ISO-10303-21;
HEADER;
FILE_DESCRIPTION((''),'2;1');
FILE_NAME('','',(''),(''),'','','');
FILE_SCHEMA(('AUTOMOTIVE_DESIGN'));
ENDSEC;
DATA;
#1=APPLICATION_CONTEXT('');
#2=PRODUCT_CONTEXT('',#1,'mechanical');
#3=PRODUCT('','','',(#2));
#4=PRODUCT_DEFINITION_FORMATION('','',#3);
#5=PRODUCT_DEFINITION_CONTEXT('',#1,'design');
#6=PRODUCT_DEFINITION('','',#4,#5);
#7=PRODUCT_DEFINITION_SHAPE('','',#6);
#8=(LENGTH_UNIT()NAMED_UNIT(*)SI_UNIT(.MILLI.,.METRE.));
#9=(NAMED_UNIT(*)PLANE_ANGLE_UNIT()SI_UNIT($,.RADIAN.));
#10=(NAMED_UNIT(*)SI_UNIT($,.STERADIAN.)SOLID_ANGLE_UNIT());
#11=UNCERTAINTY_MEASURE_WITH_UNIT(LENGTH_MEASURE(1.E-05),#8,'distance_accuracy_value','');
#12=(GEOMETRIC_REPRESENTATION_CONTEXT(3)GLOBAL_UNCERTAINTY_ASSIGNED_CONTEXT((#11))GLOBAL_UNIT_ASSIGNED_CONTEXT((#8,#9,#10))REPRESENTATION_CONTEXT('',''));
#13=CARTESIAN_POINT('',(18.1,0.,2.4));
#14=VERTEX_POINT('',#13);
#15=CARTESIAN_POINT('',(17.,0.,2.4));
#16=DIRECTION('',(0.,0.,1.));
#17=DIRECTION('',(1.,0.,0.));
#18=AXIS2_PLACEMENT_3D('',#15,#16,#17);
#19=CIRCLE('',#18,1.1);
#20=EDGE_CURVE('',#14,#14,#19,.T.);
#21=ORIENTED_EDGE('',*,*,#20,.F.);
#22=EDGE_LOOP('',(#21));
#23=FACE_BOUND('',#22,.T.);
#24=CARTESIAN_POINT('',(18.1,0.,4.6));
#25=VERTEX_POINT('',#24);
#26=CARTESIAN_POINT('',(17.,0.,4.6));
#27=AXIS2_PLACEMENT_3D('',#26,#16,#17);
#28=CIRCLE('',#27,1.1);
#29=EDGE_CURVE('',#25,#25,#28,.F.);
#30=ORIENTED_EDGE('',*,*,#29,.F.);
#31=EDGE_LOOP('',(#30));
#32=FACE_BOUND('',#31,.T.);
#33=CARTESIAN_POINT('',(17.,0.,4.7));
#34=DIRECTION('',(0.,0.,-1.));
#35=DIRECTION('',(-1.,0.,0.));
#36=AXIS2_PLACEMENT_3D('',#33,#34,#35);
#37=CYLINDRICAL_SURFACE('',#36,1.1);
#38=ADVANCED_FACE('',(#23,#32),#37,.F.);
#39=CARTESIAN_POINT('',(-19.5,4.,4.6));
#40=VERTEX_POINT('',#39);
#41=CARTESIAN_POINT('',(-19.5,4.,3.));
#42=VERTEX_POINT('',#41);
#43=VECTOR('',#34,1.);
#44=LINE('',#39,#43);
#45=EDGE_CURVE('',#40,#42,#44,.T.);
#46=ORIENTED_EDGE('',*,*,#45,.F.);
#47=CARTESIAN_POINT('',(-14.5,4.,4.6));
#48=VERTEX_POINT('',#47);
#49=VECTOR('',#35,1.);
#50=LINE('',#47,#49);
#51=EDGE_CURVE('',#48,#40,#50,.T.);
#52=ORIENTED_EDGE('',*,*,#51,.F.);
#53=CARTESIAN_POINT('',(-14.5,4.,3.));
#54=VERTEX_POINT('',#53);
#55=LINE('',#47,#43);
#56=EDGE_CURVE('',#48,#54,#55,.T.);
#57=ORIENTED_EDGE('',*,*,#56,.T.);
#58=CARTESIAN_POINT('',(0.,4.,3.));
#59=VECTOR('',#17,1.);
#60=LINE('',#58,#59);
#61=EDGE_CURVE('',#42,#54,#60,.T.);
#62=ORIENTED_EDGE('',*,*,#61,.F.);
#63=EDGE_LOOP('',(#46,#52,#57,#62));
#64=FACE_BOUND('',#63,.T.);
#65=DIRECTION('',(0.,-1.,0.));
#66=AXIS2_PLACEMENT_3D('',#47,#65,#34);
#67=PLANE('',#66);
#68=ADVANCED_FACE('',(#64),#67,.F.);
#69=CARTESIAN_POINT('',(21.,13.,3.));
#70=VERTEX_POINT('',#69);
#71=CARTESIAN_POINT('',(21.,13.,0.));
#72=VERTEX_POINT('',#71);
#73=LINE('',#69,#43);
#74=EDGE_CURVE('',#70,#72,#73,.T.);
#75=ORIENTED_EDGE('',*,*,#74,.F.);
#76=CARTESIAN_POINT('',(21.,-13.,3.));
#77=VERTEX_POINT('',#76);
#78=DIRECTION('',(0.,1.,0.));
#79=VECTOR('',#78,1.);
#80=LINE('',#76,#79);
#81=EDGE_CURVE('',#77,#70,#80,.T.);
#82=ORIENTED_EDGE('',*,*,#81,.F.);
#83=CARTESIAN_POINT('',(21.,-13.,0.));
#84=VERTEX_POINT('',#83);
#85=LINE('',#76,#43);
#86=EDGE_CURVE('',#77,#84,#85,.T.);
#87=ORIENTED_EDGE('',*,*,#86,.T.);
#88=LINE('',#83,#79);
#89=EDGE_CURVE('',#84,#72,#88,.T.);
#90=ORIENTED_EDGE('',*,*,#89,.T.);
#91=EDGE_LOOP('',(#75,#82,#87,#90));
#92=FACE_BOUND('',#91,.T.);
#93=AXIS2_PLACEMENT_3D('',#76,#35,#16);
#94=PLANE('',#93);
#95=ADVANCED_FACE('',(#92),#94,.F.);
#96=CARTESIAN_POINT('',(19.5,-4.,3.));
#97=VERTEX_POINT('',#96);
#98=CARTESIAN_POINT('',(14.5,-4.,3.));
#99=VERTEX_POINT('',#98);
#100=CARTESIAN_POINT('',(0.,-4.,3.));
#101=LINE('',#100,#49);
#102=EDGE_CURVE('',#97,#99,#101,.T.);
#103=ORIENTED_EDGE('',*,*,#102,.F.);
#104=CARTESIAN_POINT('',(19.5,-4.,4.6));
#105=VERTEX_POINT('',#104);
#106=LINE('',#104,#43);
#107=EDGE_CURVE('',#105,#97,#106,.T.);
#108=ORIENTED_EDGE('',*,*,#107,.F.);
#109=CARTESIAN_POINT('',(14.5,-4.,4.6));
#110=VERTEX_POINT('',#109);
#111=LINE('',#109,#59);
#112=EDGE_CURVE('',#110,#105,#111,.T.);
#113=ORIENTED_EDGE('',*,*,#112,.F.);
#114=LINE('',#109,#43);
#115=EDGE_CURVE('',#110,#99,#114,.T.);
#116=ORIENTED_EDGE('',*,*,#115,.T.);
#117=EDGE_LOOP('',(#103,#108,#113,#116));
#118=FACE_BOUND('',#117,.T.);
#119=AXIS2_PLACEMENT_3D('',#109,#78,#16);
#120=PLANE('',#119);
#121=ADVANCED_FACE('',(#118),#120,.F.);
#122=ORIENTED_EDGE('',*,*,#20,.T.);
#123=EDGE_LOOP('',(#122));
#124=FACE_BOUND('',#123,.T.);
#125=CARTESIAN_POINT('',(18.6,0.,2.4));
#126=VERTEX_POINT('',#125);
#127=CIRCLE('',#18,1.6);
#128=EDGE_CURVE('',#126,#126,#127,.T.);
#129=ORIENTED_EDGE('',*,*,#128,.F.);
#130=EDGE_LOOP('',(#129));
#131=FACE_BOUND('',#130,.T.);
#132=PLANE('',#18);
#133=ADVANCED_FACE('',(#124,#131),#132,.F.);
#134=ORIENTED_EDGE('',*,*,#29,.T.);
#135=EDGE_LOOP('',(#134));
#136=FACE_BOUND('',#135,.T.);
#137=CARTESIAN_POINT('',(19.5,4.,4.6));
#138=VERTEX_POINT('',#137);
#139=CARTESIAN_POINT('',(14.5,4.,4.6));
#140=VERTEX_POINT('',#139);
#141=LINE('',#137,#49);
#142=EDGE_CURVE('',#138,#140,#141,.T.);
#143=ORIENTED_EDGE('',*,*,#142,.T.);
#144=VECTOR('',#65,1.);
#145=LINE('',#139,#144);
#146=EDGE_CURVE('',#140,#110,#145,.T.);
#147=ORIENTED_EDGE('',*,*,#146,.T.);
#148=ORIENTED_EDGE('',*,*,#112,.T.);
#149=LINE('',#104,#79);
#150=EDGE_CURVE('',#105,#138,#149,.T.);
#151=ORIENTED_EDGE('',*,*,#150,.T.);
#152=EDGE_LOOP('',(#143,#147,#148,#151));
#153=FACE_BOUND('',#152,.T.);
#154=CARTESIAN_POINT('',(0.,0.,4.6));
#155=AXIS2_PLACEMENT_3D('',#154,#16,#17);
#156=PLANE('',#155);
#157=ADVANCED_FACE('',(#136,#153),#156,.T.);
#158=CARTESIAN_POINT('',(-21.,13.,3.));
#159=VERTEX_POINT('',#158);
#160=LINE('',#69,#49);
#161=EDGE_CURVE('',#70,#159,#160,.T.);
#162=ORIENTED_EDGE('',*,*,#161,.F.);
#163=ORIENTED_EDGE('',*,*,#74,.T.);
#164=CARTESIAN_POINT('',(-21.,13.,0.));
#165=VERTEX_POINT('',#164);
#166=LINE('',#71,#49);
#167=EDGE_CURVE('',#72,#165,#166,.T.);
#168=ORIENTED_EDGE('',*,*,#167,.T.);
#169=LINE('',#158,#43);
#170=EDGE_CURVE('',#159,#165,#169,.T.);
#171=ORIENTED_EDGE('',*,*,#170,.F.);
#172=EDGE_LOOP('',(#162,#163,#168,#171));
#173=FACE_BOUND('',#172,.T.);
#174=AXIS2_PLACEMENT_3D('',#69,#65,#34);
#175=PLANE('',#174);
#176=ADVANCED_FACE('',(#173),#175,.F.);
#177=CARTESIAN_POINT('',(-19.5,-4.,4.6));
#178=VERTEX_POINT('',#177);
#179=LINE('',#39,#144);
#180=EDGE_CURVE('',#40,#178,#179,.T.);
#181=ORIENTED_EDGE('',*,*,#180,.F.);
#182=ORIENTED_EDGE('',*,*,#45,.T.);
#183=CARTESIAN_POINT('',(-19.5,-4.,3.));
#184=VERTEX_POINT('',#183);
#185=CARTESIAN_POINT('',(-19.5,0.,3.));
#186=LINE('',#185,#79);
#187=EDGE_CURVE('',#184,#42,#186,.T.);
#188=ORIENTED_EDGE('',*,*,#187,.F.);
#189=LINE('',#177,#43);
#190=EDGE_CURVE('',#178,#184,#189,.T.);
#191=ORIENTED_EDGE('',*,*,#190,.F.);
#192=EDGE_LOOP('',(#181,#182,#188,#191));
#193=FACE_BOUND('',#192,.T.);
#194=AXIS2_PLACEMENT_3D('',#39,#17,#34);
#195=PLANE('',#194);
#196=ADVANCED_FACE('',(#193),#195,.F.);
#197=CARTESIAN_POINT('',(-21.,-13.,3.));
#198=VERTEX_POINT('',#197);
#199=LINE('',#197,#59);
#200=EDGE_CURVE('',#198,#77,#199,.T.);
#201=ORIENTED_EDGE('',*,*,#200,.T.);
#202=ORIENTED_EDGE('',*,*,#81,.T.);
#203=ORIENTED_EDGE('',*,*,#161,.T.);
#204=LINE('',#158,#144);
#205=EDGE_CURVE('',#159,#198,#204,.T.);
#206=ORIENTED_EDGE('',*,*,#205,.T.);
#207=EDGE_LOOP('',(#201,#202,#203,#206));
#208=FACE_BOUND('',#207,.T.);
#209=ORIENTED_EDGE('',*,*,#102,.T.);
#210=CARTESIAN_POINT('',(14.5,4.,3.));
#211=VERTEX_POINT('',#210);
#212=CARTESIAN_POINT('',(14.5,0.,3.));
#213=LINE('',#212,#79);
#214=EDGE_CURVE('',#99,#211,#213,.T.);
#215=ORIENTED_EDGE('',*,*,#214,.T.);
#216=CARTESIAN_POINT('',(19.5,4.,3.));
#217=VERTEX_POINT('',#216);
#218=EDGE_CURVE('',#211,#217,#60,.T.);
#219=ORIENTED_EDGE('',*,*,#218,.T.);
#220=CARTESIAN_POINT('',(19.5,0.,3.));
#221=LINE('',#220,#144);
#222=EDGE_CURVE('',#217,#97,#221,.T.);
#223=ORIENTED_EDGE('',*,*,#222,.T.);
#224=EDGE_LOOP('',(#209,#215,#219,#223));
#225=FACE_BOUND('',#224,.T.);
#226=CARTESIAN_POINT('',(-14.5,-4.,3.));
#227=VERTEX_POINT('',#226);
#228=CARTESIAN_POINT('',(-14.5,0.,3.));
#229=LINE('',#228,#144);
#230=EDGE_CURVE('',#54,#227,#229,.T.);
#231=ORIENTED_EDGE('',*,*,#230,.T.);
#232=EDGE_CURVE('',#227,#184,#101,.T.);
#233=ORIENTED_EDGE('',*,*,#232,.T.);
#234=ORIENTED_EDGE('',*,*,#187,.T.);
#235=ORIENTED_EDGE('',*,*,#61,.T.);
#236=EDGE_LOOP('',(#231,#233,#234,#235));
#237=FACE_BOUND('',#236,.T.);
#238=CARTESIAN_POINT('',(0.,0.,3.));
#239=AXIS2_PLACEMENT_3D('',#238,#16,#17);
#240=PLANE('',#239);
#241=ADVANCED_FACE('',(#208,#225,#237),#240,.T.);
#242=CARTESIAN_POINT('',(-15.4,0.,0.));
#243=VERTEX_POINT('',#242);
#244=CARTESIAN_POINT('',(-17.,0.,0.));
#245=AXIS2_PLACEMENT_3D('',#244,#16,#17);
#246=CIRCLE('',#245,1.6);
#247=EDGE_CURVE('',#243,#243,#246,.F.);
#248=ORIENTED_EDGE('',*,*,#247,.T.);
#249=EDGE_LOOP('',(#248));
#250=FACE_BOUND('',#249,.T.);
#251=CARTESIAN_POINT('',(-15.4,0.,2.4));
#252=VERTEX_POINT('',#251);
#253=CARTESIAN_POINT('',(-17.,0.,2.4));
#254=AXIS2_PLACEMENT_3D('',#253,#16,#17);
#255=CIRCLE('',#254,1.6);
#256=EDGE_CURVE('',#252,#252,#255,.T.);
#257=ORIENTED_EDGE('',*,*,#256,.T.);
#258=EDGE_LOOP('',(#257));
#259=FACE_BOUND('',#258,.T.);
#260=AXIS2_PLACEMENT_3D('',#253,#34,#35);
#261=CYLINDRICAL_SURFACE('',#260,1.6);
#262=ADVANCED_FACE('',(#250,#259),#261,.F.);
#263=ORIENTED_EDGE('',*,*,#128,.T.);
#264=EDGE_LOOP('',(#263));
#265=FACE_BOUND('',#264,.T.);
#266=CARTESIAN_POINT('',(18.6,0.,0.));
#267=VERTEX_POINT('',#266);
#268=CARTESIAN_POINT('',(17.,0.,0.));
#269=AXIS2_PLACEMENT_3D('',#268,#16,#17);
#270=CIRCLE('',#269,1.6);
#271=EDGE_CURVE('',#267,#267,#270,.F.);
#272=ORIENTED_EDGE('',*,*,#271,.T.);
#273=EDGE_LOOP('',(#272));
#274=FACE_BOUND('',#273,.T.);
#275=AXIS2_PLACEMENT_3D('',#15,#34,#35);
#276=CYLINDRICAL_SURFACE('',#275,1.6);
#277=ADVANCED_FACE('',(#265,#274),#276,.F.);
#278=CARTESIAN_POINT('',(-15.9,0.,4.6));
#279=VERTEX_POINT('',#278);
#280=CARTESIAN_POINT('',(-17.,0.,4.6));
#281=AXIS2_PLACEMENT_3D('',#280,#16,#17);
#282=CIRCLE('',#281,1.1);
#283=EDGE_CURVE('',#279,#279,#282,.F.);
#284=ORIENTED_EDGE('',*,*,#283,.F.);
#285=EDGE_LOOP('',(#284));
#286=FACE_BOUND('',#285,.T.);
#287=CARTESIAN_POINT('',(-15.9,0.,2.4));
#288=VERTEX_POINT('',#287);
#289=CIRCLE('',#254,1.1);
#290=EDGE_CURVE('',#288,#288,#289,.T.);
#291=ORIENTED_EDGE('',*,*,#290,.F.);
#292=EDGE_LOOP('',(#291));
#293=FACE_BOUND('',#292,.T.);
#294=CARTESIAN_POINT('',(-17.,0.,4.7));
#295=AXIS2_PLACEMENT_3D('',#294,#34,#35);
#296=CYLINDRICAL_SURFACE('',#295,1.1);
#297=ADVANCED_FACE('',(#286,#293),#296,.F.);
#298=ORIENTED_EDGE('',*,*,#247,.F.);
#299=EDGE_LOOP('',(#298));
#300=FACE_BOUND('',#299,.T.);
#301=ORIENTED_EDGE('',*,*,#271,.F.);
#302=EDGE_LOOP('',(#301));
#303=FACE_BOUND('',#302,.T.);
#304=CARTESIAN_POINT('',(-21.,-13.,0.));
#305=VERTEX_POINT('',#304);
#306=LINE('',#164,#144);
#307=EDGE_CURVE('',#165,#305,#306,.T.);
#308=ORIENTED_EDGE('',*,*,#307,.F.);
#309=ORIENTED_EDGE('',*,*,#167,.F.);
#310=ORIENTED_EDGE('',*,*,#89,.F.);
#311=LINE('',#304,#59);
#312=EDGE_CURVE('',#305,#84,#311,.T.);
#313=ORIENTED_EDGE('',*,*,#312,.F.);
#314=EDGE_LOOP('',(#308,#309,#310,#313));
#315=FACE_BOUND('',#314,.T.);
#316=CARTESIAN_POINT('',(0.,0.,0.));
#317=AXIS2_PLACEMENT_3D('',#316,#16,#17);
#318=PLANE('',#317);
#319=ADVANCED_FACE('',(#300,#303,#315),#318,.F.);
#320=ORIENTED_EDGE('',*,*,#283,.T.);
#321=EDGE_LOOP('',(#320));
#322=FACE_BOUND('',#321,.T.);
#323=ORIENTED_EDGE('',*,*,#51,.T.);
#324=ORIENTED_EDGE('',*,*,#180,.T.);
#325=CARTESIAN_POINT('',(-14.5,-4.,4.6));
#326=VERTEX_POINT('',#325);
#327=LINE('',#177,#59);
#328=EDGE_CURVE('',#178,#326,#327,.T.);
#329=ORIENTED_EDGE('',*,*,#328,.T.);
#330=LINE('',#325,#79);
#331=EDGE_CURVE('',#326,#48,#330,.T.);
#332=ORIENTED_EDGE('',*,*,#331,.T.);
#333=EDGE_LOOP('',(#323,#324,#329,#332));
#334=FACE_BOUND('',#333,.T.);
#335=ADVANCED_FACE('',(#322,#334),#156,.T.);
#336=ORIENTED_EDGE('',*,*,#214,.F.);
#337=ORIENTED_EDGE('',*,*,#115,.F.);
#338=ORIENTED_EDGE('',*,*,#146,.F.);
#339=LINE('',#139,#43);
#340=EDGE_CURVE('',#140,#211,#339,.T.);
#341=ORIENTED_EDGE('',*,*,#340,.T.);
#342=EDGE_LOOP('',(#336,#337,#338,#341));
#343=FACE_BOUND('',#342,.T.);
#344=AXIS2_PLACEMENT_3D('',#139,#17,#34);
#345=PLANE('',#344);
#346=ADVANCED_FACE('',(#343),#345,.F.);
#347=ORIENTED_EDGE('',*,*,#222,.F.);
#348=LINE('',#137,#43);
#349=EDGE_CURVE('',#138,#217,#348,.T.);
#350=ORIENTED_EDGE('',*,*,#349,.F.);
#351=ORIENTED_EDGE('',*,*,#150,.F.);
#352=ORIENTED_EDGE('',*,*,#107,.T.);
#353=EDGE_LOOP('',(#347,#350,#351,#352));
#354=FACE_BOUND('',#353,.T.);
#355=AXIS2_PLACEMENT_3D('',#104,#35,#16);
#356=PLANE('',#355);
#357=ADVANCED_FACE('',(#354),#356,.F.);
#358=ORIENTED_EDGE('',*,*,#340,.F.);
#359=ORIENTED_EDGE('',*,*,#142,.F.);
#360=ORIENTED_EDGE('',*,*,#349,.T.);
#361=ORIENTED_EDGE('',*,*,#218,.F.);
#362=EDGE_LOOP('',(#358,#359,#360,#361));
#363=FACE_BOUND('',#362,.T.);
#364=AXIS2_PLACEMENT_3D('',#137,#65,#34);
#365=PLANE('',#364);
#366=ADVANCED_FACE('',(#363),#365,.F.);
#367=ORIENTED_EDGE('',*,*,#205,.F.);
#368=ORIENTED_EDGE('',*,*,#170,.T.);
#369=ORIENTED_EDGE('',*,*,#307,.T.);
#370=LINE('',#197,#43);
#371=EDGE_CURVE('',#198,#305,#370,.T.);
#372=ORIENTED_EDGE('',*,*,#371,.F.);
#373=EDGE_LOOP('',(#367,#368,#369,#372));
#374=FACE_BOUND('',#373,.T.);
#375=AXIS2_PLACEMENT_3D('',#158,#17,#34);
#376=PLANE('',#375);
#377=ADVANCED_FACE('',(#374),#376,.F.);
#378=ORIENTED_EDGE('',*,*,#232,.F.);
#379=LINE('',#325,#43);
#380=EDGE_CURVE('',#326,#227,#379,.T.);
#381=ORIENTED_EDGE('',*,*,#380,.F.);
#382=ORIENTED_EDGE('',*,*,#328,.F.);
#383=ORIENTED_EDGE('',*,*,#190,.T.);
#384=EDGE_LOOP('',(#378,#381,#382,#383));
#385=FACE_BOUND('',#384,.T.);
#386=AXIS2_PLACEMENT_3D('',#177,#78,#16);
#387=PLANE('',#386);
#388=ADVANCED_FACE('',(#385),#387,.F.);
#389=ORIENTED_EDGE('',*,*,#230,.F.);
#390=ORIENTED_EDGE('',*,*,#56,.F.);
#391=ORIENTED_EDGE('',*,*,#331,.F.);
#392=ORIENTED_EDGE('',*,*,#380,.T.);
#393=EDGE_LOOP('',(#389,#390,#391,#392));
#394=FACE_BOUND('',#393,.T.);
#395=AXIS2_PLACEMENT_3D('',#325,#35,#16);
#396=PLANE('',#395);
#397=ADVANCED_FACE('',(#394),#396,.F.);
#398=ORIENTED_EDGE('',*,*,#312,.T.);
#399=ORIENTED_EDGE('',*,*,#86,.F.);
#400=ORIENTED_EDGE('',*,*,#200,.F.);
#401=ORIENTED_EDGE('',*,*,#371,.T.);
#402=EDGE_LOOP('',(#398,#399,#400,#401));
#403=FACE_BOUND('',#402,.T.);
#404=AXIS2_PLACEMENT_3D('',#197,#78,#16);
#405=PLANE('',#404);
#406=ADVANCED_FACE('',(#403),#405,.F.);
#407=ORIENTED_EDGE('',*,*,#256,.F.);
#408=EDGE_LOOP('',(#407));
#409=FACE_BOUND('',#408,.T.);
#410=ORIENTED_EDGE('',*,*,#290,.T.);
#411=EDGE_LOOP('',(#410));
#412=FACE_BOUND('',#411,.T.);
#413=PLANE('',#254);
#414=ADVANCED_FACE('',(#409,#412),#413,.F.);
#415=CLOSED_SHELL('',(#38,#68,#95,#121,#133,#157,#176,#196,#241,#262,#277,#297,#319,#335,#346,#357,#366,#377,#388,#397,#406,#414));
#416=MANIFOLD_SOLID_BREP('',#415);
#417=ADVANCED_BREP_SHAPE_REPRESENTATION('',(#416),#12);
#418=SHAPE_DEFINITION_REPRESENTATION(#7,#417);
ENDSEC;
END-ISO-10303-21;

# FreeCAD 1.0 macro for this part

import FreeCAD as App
import Part
import Sketcher

V = App.Vector
Q = App.Units.Quantity


def add_polygon(sketch, points):
    """Adds a closed chain of lines whose ends are joined by coincident constraints."""
    first, n = sketch.GeometryCount, len(points)
    for a, b in zip(points, points[1:] + points[:1]):
        sketch.addGeometry(Part.LineSegment(App.Vector(*a, 0), App.Vector(*b, 0)), False)
    for i in range(n):
        sketch.addConstraint(Sketcher.Constraint("Coincident", first + i, 2, first + (i + 1) % n, 1))

doc = App.newDocument("Part")
body = doc.addObject("PartDesign::Body", "Body")

# Sketch on XY plane
sketch1 = body.newObject("Sketcher::SketchObject", "Sketch")
sketch1.AttachmentSupport = (doc.getObject("XY_Plane"), [""])
sketch1.MapMode = "FlatFace"
add_polygon(sketch1, [(-21, 13), (-21, -13), (21, -13), (21, 13)])  # lines 0-3
sketch1.addConstraint([
    Sketcher.Constraint("Vertical", 0),
    Sketcher.Constraint("Horizontal", 1),
    Sketcher.Constraint("Vertical", 2),
    Sketcher.Constraint("Horizontal", 3),
    Sketcher.Constraint("Symmetric", 0, 2, 2, 2, -1, 1),
    Sketcher.Constraint("DistanceX", 1, 1, 1, 2, Q("42 mm")),
    Sketcher.Constraint("DistanceY", 0, 2, 0, 1, Q("26 mm")),
])
pad1 = body.newObject("PartDesign::Pad", "Pad")
pad1.Profile = sketch1
pad1.Length = 3

# Sketch on XY plane
sketch2 = body.newObject("Sketcher::SketchObject", "Sketch001")
sketch2.AttachmentSupport = (doc.getObject("XY_Plane"), [""])
sketch2.MapMode = "FlatFace"
sketch2.AttachmentOffset = App.Placement(V(0, 0, 2.9), App.Rotation())
add_polygon(sketch2, [(-20, 4), (-20, -4), (-14, -4), (-14, 4)])  # lines 0-3
sketch2.addConstraint([
    Sketcher.Constraint("Vertical", 0),
    Sketcher.Constraint("Horizontal", 1),
    Sketcher.Constraint("Vertical", 2),
    Sketcher.Constraint("Horizontal", 3),
    Sketcher.Constraint("DistanceX", 1, 1, 1, 2, Q("5 mm")),
    Sketcher.Constraint("DistanceY", 0, 2, 0, 1, Q("8 mm")),
    Sketcher.Constraint("DistanceY", 0, 2, -1, 1, Q("4 mm")),
    Sketcher.Constraint("DistanceX", 0, 2, -1, 1, Q("19.5 mm")),
])
pad2 = body.newObject("PartDesign::Pad", "Pad001")
pad2.Profile = sketch2
pad2.Length = 1.7

# Sketch on XY plane
sketch3 = body.newObject("Sketcher::SketchObject", "Sketch002")
sketch3.AttachmentSupport = (doc.getObject("XY_Plane"), [""])
sketch3.MapMode = "FlatFace"
sketch3.AttachmentOffset = App.Placement(V(0, 0, -0.1), App.Rotation())
sketch3.addGeometry(Part.Circle(V(-17, 0, 0), V(0, 0, 1), 1.1), False)
sketch3.addConstraint([
    Sketcher.Constraint("PointOnObject", 0, 3, -1),
    Sketcher.Constraint("Diameter", 0, Q("2.2 mm")),
    Sketcher.Constraint("DistanceX", 0, 3, -1, 1, Q("17 mm")),
])
pocket1 = body.newObject("PartDesign::Pocket", "Pocket")
pocket1.Profile = sketch3
pocket1.Length = 4.8
pocket1.Reversed = True

# Sketch on XY plane
sketch4 = body.newObject("Sketcher::SketchObject", "Sketch003")
sketch4.AttachmentSupport = (doc.getObject("XY_Plane"), [""])
sketch4.MapMode = "FlatFace"
sketch4.AttachmentOffset = App.Placement(V(0, 0, -0.1), App.Rotation())
sketch4.addGeometry(Part.Circle(V(-17, 0, 0), V(0, 0, 1), 1.6), False)
sketch4.addConstraint([
    Sketcher.Constraint("PointOnObject", 0, 3, -1),
    Sketcher.Constraint("Diameter", 0, Q("3.2 mm")),
    Sketcher.Constraint("DistanceX", 0, 3, -1, 1, Q("17 mm")),
])
pocket2 = body.newObject("PartDesign::Pocket", "Pocket001")
pocket2.Profile = sketch4
pocket2.Length = 2.5
pocket2.Reversed = True

# Sketch on XY plane
sketch5 = body.newObject("Sketcher::SketchObject", "Sketch004")
sketch5.AttachmentSupport = (doc.getObject("XY_Plane"), [""])
sketch5.MapMode = "FlatFace"
sketch5.AttachmentOffset = App.Placement(V(0, 0, 2.9), App.Rotation())
add_polygon(sketch5, [(14, 4), (14, -4), (20, -4), (20, 4)])  # lines 0-3
sketch5.addConstraint([
    Sketcher.Constraint("Vertical", 0),
    Sketcher.Constraint("Horizontal", 1),
    Sketcher.Constraint("Vertical", 2),
    Sketcher.Constraint("Horizontal", 3),
    Sketcher.Constraint("DistanceX", 1, 1, 1, 2, Q("5 mm")),
    Sketcher.Constraint("DistanceY", 0, 2, 0, 1, Q("8 mm")),
    Sketcher.Constraint("DistanceY", 0, 2, -1, 1, Q("4 mm")),
    Sketcher.Constraint("DistanceX", -1, 1, 0, 2, Q("14.5 mm")),
])
pad3 = body.newObject("PartDesign::Pad", "Pad002")
pad3.Profile = sketch5
pad3.Length = 1.7

# Sketch on XY plane
sketch6 = body.newObject("Sketcher::SketchObject", "Sketch005")
sketch6.AttachmentSupport = (doc.getObject("XY_Plane"), [""])
sketch6.MapMode = "FlatFace"
sketch6.AttachmentOffset = App.Placement(V(0, 0, -0.1), App.Rotation())
sketch6.addGeometry(Part.Circle(V(17, 0, 0), V(0, 0, 1), 1.1), False)
sketch6.addConstraint([
    Sketcher.Constraint("PointOnObject", 0, 3, -1),
    Sketcher.Constraint("Diameter", 0, Q("2.2 mm")),
    Sketcher.Constraint("DistanceX", -1, 1, 0, 3, Q("17 mm")),
])
pocket3 = body.newObject("PartDesign::Pocket", "Pocket002")
pocket3.Profile = sketch6
pocket3.Length = 4.8
pocket3.Reversed = True

# Sketch on XY plane
sketch7 = body.newObject("Sketcher::SketchObject", "Sketch006")
sketch7.AttachmentSupport = (doc.getObject("XY_Plane"), [""])
sketch7.MapMode = "FlatFace"
sketch7.AttachmentOffset = App.Placement(V(0, 0, -0.1), App.Rotation())
sketch7.addGeometry(Part.Circle(V(17, 0, 0), V(0, 0, 1), 1.6), False)
sketch7.addConstraint([
    Sketcher.Constraint("PointOnObject", 0, 3, -1),
    Sketcher.Constraint("Diameter", 0, Q("3.2 mm")),
    Sketcher.Constraint("DistanceX", -1, 1, 0, 3, Q("17 mm")),
])
pocket4 = body.newObject("PartDesign::Pocket", "Pocket003")
pocket4.Profile = sketch7
pocket4.Length = 2.5
pocket4.Reversed = True

doc.recompute()
